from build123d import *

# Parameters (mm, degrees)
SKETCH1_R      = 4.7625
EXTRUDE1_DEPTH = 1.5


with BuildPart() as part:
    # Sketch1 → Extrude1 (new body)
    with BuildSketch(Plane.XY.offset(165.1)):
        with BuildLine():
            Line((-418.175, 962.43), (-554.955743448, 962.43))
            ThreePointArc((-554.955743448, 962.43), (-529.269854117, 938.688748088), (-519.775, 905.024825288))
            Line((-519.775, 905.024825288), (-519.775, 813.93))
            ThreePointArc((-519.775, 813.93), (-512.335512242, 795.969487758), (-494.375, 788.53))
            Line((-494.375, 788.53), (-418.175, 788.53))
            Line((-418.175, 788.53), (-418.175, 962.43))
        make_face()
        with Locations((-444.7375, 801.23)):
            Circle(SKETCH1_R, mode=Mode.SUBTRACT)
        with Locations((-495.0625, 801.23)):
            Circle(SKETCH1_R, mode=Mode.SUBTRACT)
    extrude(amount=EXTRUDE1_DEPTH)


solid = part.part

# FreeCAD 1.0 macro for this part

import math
import FreeCAD as App
import Part
import Sketcher
from FreeCAD import Vector
Q = App.Units.Quantity

doc = App.newDocument("Part")
params = doc.addObject("Spreadsheet::Sheet", "Params")
for row, (alias, value) in enumerate([
    ("sketch1_radius", "1 in"),
    ("sketch1_width", "3 in"),
    ("sketch1_diameter", "0.375 in"),
    ("pad1_length", "1.5 mm"),
], start=1):
    params.set(f"A{row}", alias)
    params.set(f"B{row}", "=" + value)
    params.setAlias(f"B{row}", alias)

body = doc.addObject("PartDesign::Body", "Body")

# Sketch on XY plane
sketch1 = doc.addObject("Sketcher::SketchObject", "Sketch")
body.addObject(sketch1)
sketch1.AttachmentSupport = (doc.XY_Plane, [""])
sketch1.MapMode = "FlatFace"
sketch1.AttachmentOffset = App.Placement(Vector(0, 0, 6.5 * 25.4), App.Rotation())
sketch1.addGeometry([
    Part.LineSegment(Vector(-418.2, 962.4, 0), Vector(-555, 962.4, 0)),  # 0
    Part.ArcOfCircle(Part.Circle(Vector(-584.2, 905, 0), Vector(0, 0, 1), 64.4), math.radians(0), math.radians(63)),  # 1
    Part.LineSegment(Vector(-519.8, 905, 0), Vector(-519.8, 813.9, 0)),  # 2
    Part.ArcOfCircle(Part.Circle(Vector(-494.4, 813.9, 0), Vector(0, 0, 1), 25.4), math.radians(180), math.radians(270)),  # 3
    Part.LineSegment(Vector(-494.4, 788.5, 0), Vector(-418.2, 788.5, 0)),  # 4
    Part.LineSegment(Vector(-418.2, 788.5, 0), Vector(-418.2, 962.4, 0)),  # 5
    Part.Circle(Vector(-495.1, 801.2, 0), Vector(0, 0, 1), 4.8),  # 6
    Part.Circle(Vector(-444.7, 801.2, 0), Vector(0, 0, 1), 4.8),  # 7
], False)
sketch1.addConstraint([
    Sketcher.Constraint("Coincident", 0, 2, 1, 2),
    Sketcher.Constraint("Tangent", 1, 1, 2, 1),
    Sketcher.Constraint("Tangent", 2, 2, 3, 1),
    Sketcher.Constraint("Tangent", 3, 2, 4, 1),
    Sketcher.Constraint("Coincident", 4, 2, 5, 1),
    Sketcher.Constraint("Coincident", 5, 2, 0, 1),
    Sketcher.Constraint("Horizontal", 0),
    Sketcher.Constraint("Vertical", 2),
    Sketcher.Constraint("Horizontal", 4),
    Sketcher.Constraint("Vertical", 5),
    Sketcher.Constraint("Equal", 6, 7),
    Sketcher.Constraint("Horizontal", 6, 3, 7, 3),
    Sketcher.Constraint("Radius", 3, Q("1 in")),
    Sketcher.Constraint("DistanceX", 4, 1, 4, 2, Q("3 in")),
    Sketcher.Constraint("Diameter", 6, Q("0.375 in")),
    Sketcher.Constraint("DistanceX", 1, 3, -1, 1, Q("23 in")),
    Sketcher.Constraint("DistanceY", 6, 3, 3, 3, Q("0.5 in")),
    Sketcher.Constraint("Radius", 1, 64.425),
    Sketcher.Constraint("DistanceY", 5, 1, 5, 2, 173.9),
    Sketcher.Constraint("DistanceY", -1, 1, 3, 3, 813.93),
    Sketcher.Constraint("DistanceX", 6, 3, -1, 1, 495.0625),
    Sketcher.Constraint("DistanceX", 7, 3, -1, 1, 444.7375),
    Sketcher.Constraint("DistanceX", 0, 2, 0, 1, 136.780743),
])
sketch1.setExpression("Constraints[12]", "Params.sketch1_radius")
sketch1.setExpression("Constraints[13]", "Params.sketch1_width")
sketch1.setExpression("Constraints[14]", "Params.sketch1_diameter")
pad1 = doc.addObject("PartDesign::Pad", "Pad")
body.addObject(pad1)
pad1.Profile = sketch1
pad1.setExpression("Length", "Params.pad1_length")

doc.recompute()
